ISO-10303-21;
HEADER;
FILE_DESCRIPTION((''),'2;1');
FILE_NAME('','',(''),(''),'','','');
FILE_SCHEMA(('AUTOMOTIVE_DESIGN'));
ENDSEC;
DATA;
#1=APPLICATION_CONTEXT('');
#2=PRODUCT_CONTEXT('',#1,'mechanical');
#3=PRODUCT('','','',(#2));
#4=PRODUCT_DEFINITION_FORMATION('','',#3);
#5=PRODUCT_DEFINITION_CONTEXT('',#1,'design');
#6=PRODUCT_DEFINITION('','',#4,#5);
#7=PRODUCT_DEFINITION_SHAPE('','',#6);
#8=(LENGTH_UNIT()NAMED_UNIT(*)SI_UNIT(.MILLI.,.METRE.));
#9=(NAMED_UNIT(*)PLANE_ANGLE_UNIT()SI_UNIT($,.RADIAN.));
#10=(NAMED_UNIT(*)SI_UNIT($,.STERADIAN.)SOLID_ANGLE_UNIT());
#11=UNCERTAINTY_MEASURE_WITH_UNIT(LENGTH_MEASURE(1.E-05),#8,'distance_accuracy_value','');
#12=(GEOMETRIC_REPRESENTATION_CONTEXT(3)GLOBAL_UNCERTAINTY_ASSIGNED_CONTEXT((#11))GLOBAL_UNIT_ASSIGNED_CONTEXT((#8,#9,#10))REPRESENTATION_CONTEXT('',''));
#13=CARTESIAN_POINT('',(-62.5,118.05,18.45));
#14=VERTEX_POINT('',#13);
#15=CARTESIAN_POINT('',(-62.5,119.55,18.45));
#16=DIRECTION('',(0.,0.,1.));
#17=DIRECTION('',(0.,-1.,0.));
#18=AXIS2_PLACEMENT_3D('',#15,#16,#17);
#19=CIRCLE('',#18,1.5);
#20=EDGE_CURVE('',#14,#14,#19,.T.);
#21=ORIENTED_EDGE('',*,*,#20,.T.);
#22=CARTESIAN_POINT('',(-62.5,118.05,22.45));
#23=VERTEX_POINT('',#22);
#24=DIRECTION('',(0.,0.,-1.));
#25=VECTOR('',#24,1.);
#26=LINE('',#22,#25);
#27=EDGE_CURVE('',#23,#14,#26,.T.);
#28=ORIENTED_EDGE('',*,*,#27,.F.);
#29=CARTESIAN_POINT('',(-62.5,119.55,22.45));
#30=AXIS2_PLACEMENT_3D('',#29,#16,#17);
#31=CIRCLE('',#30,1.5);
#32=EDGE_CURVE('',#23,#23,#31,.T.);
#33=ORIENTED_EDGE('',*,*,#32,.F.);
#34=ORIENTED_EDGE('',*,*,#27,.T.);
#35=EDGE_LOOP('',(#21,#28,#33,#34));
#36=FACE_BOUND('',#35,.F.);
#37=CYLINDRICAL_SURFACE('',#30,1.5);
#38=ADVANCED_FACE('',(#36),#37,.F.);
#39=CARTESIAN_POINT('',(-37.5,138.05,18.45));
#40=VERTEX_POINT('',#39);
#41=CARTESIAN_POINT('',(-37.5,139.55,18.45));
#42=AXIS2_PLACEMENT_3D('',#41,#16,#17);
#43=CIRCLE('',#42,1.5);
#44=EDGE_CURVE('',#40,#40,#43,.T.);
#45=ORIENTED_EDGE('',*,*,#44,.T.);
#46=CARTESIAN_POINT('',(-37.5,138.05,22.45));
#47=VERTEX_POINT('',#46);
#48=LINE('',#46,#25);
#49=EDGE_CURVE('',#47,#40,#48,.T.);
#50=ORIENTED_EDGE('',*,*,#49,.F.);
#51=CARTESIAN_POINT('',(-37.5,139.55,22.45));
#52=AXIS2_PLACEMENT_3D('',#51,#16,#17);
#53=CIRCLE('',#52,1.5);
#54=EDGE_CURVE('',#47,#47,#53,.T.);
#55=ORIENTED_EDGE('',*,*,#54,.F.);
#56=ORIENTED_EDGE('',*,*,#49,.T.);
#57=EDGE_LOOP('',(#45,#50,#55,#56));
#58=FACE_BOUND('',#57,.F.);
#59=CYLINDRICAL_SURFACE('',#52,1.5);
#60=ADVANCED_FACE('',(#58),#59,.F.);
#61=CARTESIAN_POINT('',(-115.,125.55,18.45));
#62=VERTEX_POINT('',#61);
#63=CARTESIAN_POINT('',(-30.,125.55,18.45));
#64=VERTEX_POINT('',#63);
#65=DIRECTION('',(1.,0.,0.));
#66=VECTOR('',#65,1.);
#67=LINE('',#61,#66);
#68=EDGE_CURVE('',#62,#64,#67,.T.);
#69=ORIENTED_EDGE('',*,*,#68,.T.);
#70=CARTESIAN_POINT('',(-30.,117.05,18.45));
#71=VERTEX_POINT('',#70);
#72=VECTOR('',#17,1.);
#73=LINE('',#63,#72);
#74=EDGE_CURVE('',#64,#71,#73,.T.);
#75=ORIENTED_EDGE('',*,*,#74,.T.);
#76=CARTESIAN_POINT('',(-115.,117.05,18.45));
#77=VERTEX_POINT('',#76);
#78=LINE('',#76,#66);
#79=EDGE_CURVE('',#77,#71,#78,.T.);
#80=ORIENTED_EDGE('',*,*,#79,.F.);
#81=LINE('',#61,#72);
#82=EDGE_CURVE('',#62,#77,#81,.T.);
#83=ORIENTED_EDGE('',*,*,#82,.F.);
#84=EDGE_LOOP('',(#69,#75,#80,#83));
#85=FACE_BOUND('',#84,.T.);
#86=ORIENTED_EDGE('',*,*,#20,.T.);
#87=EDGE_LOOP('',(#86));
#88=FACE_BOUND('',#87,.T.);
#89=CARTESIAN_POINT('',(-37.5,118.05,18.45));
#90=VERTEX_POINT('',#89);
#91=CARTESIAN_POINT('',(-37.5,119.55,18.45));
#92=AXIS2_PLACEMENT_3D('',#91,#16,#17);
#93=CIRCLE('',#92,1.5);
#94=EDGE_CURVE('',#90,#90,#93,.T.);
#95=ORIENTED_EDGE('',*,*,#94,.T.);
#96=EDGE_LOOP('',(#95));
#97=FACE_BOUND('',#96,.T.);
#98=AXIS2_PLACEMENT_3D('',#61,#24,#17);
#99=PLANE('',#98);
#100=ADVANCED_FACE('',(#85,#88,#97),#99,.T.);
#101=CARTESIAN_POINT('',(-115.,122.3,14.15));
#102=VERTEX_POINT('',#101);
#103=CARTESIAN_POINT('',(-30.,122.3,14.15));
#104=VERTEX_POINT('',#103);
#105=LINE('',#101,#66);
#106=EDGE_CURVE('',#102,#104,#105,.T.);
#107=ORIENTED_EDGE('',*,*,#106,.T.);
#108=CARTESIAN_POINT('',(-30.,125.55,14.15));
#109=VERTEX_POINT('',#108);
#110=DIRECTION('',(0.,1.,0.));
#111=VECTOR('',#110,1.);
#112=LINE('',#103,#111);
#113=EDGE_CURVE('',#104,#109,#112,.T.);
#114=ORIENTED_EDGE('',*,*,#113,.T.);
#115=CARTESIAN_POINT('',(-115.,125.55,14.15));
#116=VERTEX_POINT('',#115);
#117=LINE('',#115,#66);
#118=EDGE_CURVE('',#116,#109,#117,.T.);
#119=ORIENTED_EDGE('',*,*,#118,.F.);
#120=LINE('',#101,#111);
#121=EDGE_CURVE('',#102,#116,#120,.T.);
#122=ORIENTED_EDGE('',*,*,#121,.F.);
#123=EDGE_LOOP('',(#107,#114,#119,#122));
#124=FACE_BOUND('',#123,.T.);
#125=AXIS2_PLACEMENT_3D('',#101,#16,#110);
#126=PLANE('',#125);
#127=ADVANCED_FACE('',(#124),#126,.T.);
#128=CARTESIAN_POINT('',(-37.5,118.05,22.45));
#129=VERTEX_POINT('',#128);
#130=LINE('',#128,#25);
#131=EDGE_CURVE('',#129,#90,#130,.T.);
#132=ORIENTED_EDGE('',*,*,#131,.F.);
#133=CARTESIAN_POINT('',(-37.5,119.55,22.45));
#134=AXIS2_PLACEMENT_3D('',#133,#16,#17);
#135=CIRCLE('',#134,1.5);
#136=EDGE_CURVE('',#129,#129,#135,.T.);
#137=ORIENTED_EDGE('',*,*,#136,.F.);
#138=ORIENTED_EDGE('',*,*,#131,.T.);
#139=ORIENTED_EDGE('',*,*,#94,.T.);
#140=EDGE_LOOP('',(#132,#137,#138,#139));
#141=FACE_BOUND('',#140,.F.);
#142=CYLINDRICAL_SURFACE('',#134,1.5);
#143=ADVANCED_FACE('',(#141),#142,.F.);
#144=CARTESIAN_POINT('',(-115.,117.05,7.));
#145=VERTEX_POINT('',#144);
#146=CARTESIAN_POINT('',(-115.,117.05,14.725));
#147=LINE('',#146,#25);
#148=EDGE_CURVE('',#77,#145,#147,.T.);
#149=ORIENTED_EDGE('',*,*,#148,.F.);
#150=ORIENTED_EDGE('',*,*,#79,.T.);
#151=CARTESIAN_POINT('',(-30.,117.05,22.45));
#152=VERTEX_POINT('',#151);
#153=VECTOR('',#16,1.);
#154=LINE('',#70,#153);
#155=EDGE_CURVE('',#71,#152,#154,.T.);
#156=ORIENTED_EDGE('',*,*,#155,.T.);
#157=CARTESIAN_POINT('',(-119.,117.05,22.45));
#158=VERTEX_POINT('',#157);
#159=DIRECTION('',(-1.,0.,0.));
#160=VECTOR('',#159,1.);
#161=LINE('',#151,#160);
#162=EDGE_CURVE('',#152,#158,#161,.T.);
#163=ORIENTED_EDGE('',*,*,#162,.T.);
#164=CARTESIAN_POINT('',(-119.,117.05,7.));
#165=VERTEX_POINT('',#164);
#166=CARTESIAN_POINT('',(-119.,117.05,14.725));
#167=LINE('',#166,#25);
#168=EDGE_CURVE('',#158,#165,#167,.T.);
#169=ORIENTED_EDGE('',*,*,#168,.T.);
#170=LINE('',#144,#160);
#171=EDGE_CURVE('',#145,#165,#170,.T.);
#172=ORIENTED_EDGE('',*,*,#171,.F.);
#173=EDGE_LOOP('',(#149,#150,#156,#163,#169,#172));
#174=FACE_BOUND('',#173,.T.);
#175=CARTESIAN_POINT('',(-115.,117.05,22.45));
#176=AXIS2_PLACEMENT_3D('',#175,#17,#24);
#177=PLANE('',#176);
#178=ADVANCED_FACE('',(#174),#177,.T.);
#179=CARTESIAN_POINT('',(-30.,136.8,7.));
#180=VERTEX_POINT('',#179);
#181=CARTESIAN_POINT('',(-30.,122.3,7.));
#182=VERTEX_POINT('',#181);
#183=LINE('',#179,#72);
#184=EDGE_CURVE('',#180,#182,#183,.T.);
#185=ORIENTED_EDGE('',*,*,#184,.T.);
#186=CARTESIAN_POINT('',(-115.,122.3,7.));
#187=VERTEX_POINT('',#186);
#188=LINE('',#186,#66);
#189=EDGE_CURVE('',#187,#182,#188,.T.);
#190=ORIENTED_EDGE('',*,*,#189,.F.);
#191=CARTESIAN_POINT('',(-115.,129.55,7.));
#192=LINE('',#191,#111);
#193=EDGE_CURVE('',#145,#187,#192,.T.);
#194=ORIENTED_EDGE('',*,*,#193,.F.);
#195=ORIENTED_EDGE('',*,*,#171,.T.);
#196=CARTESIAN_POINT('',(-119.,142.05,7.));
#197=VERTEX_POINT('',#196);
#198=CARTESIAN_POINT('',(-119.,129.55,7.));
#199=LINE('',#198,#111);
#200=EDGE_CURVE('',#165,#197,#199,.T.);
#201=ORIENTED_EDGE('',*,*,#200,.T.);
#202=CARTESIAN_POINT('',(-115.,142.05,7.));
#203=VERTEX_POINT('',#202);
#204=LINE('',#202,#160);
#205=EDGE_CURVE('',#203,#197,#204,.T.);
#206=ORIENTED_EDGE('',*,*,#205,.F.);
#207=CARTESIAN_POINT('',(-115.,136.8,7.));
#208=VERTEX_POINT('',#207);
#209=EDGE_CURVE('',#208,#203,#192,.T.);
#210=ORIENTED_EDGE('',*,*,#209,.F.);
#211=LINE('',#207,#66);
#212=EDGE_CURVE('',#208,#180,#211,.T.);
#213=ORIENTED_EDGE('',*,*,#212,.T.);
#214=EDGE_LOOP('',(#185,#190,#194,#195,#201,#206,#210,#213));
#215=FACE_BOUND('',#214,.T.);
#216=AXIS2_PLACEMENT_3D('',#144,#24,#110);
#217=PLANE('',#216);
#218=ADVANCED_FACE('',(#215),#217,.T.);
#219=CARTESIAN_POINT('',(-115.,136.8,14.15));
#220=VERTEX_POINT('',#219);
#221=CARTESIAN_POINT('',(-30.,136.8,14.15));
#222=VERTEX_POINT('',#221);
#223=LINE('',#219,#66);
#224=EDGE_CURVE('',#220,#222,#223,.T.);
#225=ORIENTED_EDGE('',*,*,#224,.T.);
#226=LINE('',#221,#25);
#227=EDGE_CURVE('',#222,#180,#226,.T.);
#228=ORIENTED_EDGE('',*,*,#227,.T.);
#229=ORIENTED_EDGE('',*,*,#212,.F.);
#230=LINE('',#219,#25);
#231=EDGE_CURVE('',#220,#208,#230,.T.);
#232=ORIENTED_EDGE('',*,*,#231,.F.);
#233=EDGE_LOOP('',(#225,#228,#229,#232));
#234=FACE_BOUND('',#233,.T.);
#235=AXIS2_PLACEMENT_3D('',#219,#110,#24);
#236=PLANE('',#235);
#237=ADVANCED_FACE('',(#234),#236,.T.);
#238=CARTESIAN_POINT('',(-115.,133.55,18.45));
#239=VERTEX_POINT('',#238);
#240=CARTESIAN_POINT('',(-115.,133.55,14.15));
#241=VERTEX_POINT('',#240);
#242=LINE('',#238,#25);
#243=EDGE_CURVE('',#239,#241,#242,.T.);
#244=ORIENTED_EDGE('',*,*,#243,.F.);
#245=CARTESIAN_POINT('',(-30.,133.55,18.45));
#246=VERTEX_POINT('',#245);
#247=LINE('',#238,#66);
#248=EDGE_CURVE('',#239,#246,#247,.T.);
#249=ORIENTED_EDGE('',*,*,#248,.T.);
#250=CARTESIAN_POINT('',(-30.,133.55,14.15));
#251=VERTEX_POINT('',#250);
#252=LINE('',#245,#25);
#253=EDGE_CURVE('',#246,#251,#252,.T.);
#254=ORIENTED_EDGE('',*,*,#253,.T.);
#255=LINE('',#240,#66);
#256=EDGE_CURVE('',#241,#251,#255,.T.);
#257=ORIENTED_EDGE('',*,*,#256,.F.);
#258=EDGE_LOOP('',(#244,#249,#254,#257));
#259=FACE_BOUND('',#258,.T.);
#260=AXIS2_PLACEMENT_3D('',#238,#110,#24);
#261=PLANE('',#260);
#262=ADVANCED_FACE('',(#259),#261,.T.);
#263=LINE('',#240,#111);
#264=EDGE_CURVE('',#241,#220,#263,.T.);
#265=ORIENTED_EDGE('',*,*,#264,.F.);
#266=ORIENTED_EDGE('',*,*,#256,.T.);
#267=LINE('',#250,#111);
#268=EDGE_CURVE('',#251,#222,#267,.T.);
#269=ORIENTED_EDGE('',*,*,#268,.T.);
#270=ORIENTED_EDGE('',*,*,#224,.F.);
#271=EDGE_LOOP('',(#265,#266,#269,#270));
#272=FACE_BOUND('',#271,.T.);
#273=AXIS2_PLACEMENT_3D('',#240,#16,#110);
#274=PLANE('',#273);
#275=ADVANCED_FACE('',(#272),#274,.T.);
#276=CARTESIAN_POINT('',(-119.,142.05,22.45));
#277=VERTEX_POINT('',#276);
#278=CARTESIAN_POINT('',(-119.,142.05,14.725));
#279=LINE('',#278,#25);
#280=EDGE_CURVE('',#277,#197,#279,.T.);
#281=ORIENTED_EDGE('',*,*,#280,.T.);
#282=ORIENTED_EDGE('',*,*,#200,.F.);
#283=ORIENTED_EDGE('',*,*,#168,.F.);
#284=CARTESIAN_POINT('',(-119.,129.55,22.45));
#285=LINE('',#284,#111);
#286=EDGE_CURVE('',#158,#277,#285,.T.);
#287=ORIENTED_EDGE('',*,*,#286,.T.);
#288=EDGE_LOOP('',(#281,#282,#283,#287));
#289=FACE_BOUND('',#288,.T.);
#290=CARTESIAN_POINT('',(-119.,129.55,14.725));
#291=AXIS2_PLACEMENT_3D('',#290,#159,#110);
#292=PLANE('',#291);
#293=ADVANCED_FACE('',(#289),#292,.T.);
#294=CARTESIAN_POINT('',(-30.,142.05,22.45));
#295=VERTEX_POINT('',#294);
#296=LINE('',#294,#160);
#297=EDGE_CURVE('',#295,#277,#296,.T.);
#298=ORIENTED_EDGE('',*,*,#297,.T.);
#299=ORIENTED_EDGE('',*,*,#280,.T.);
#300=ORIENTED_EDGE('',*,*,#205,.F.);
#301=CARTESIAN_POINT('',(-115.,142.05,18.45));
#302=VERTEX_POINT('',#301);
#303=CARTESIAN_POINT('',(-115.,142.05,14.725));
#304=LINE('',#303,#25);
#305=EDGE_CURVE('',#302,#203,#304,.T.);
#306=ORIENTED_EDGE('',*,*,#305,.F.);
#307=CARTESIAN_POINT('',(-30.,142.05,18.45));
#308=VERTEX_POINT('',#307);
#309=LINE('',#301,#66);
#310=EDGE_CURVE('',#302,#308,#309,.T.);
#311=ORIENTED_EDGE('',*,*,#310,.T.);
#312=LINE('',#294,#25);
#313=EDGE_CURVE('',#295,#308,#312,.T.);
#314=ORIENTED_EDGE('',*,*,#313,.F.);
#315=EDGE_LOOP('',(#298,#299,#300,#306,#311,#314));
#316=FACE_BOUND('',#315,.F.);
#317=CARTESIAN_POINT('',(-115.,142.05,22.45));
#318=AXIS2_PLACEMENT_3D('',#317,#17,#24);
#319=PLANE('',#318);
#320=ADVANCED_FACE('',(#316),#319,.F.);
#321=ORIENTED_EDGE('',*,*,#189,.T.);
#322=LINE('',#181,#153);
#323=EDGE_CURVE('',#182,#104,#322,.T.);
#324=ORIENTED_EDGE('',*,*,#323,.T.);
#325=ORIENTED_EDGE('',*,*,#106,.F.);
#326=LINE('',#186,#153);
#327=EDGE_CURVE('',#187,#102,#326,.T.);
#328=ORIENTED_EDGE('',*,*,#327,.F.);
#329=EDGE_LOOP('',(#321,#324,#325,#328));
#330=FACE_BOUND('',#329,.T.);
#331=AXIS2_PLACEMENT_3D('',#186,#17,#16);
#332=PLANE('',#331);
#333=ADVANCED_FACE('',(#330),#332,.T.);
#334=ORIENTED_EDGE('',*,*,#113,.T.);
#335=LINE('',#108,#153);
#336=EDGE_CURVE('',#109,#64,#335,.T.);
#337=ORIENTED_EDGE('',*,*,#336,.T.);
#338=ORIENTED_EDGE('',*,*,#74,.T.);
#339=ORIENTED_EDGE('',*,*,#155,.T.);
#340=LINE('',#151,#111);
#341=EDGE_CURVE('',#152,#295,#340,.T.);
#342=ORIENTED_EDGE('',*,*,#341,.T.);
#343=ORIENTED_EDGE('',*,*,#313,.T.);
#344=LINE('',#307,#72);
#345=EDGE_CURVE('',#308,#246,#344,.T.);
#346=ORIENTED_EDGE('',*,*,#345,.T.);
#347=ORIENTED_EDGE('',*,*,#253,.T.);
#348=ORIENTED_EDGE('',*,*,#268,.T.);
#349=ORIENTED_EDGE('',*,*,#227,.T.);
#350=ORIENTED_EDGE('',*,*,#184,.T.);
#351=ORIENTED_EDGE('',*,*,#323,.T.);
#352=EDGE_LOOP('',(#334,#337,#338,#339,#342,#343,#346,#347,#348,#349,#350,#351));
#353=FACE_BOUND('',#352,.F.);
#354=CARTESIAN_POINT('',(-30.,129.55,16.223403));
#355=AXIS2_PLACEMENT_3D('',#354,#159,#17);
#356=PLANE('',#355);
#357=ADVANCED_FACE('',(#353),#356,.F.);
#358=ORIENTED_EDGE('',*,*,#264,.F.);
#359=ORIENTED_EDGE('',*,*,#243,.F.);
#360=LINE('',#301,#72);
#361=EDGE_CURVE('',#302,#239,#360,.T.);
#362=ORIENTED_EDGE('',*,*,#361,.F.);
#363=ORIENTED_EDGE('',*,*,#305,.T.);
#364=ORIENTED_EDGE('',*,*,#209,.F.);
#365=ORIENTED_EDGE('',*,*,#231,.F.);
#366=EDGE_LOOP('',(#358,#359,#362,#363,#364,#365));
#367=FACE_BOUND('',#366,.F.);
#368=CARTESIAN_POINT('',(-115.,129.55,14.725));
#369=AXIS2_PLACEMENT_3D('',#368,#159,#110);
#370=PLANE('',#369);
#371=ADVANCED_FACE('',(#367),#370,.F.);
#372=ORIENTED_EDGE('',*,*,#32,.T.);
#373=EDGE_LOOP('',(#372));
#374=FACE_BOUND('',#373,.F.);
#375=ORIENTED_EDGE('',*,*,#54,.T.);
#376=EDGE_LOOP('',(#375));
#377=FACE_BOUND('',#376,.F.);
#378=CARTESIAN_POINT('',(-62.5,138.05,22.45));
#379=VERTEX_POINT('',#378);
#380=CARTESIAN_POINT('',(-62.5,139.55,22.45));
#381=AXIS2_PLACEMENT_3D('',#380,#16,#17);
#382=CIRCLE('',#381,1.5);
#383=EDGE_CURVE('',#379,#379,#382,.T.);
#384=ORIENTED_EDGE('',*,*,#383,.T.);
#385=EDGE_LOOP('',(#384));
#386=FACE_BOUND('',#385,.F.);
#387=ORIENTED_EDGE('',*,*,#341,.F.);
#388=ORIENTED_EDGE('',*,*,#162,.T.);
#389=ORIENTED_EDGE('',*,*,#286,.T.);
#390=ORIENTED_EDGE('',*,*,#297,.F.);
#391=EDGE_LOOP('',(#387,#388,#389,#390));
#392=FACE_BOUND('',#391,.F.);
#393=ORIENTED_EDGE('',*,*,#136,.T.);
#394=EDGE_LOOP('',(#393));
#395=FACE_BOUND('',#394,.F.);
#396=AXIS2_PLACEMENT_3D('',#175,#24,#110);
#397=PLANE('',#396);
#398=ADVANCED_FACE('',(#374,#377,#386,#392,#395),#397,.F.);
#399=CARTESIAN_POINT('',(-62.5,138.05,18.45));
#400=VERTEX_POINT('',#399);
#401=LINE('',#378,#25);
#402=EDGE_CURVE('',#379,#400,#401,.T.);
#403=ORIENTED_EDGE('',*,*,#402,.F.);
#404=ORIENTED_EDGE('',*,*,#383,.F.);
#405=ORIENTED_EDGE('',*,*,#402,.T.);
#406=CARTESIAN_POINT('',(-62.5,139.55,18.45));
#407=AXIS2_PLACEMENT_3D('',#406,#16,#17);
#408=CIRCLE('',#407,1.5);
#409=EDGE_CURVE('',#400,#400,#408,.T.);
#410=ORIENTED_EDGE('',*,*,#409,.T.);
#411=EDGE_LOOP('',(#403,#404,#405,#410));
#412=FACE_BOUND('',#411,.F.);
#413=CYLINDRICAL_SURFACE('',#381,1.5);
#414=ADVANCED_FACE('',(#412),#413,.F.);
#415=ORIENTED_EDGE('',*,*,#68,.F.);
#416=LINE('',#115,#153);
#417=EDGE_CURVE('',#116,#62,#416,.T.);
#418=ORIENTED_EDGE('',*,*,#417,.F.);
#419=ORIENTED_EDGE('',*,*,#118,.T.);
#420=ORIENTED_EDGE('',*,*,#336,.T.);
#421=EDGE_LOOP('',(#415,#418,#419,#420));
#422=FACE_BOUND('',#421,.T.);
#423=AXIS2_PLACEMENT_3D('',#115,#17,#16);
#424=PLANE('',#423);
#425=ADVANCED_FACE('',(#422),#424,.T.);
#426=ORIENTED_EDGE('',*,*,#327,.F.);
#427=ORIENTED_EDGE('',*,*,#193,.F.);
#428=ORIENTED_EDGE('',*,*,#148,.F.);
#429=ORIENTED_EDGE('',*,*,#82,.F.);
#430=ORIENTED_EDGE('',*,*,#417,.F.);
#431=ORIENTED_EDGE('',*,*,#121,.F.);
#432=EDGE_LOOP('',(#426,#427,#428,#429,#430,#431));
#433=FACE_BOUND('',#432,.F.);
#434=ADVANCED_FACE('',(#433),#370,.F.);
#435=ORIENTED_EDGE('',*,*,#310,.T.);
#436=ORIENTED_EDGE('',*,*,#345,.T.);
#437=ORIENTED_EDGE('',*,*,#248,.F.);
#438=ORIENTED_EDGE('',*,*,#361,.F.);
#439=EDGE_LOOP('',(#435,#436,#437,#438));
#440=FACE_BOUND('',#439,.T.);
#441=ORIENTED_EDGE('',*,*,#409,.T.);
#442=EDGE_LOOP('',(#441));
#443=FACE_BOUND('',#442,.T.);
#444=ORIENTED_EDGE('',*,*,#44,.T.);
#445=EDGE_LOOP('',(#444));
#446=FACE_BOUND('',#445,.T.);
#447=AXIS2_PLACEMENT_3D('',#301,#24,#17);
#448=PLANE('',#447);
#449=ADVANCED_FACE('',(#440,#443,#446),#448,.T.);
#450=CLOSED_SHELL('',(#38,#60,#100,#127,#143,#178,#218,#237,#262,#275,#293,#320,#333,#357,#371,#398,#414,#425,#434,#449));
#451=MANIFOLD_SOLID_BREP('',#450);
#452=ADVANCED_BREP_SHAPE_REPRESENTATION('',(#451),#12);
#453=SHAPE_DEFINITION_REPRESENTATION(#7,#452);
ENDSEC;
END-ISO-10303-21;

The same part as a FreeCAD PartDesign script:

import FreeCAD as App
import Part
import Sketcher

V = App.Vector


def add_polygon(sketch, points):
    """Adds a closed chain of lines whose ends are joined by coincident constraints."""
    first, n = sketch.GeometryCount, len(points)
    for a, b in zip(points, points[1:] + points[:1]):
        sketch.addGeometry(Part.LineSegment(App.Vector(*a, 0), App.Vector(*b, 0)), False)
    for i in range(n):
        sketch.addConstraint(Sketcher.Constraint("Coincident", first + i, 2, first + (i + 1) % n, 1))

doc = App.newDocument("Part")
body = doc.addObject("PartDesign::Body", "Body")

# Sketch on YZ plane
sketch1 = doc.addObject("Sketcher::SketchObject", "Sketch")
body.addObject(sketch1)
sketch1.AttachmentSupport = (doc.YZ_Plane, [""])
sketch1.MapMode = "FlatFace"
add_polygon(sketch1, [(-5.2, 15.4), (-5.2, 11.4), (3.2, 11.4), (3.2, 7.2), (0, 7.2), (0, 0), (14.5, 0), (14.5, 7.2), (11.2, 7.2), (11.2, 11.4), (19.8, 11.4), (19.8, 15.4)])  # lines 0-11
sketch1.addConstraint([
    Sketcher.Constraint("Vertical", 0),
    Sketcher.Constraint("Horizontal", 1),
    Sketcher.Constraint("Vertical", 2),
    Sketcher.Constraint("Horizontal", 3),
    Sketcher.Constraint("Vertical", 4),
    Sketcher.Constraint("Horizontal", 5),
    Sketcher.Constraint("Vertical", 6),
    Sketcher.Constraint("Horizontal", 7),
    Sketcher.Constraint("Vertical", 8),
    Sketcher.Constraint("Horizontal", 9),
    Sketcher.Constraint("Vertical", 10),
    Sketcher.Constraint("Horizontal", 11),
    Sketcher.Constraint("Coincident", 4, 2, -1, 1),
    Sketcher.Constraint("Horizontal", 3, 2, 6, 2),
    Sketcher.Constraint("Horizontal", 1, 2, 8, 2),
    Sketcher.Constraint("Equal", 3, 7),
    Sketcher.Constraint("Equal", 1, 9),
    Sketcher.Constraint("DistanceX", 11, 2, 11, 1, 25.0),
    Sketcher.Constraint("DistanceY", 0, 2, 0, 1, 4.0),
    Sketcher.Constraint("DistanceX", 1, 1, 1, 2, 8.5),
    Sketcher.Constraint("DistanceX", 5, 1, 5, 2, 14.5),
    Sketcher.Constraint("DistanceY", 2, 2, 2, 1, 4.3),
    Sketcher.Constraint("DistanceY", 4, 2, 4, 1, 7.15),
])
pad1 = doc.addObject("PartDesign::Pad", "Pad")
body.addObject(pad1)
pad1.Profile = sketch1
pad1.Length = 85

# Sketch on XY plane
sketch2 = doc.addObject("Sketcher::SketchObject", "Sketch001")
body.addObject(sketch2)
sketch2.AttachmentSupport = (doc.XY_Plane, [""])
sketch2.MapMode = "FlatFace"
sketch2.AttachmentOffset = App.Placement(V(0, 0, 15.45), App.Rotation())
sketch2.addGeometry([
    Part.Circle(V(77.5, 17.2, 0), V(0, 0, 1), 1.5),
    Part.Circle(V(52.5, 17.2, 0), V(0, 0, 1), 1.5),
    Part.Circle(V(52.5, -2.8, 0), V(0, 0, 1), 1.5),
    Part.Circle(V(77.5, -2.8, 0), V(0, 0, 1), 1.5),
], False)
sketch2.addConstraint([
    Sketcher.Constraint("Equal", 0, 1),
    Sketcher.Constraint("Equal", 1, 2),
    Sketcher.Constraint("Equal", 2, 3),
    Sketcher.Constraint("Horizontal", 0, 3, 1, 3),
    Sketcher.Constraint("Horizontal", 2, 3, 3, 3),
    Sketcher.Constraint("Vertical", 1, 3, 2, 3),
    Sketcher.Constraint("Vertical", 0, 3, 3, 3),
    Sketcher.Constraint("Diameter", 0, 3.0),
    Sketcher.Constraint("DistanceX", 1, 3, 0, 3, 25.0),
    Sketcher.Constraint("DistanceY", 2, 3, 1, 3, 20.0),
    Sketcher.Constraint("DistanceX", -1, 1, 0, 3, 77.5),
    Sketcher.Constraint("DistanceY", -1, 1, 0, 3, 17.25),
])
pocket1 = doc.addObject("PartDesign::Pocket", "Pocket")
body.addObject(pocket1)
pocket1.Profile = sketch2
pocket1.Type = "ThroughAll"

# Sketch on YZ plane
sketch3 = doc.addObject("Sketcher::SketchObject", "Sketch002")
body.addObject(sketch3)
sketch3.AttachmentSupport = (doc.YZ_Plane, [""])
sketch3.MapMode = "FlatFace"
add_polygon(sketch3, [(-5, 0), (-5, 15), (20, 15), (20, 0)])  # lines 0-3
sketch3.addConstraint([
    Sketcher.Constraint("Vertical", 0),
    Sketcher.Constraint("Horizontal", 1),
    Sketcher.Constraint("Vertical", 2),
    Sketcher.Constraint("Horizontal", 3),
    Sketcher.Constraint("PointOnObject", 2, 2, -1),
    Sketcher.Constraint("DistanceX", 1, 1, 1, 2, 25.0),
    Sketcher.Constraint("DistanceY", 0, 1, 0, 2, 15.45),
    Sketcher.Constraint("DistanceX", 0, 2, -1, 1, 5.25),
])
pad2 = doc.addObject("PartDesign::Pad", "Pad001")
body.addObject(pad2)
pad2.Profile = sketch3
pad2.Length = 4
pad2.Reversed = True
body2 = doc.addObject("PartDesign::Body", "Body001")
doc.recompute()

body.Placement = App.Placement(V(-115, 122.3, 7), App.Rotation(V(0, 0, 1), 0))
boolean = doc.addObject("PartDesign::Boolean", "Boolean")
body2.addObject(boolean)
boolean.Type = "Fuse"
boolean.addObjects([body])

doc.recompute()
